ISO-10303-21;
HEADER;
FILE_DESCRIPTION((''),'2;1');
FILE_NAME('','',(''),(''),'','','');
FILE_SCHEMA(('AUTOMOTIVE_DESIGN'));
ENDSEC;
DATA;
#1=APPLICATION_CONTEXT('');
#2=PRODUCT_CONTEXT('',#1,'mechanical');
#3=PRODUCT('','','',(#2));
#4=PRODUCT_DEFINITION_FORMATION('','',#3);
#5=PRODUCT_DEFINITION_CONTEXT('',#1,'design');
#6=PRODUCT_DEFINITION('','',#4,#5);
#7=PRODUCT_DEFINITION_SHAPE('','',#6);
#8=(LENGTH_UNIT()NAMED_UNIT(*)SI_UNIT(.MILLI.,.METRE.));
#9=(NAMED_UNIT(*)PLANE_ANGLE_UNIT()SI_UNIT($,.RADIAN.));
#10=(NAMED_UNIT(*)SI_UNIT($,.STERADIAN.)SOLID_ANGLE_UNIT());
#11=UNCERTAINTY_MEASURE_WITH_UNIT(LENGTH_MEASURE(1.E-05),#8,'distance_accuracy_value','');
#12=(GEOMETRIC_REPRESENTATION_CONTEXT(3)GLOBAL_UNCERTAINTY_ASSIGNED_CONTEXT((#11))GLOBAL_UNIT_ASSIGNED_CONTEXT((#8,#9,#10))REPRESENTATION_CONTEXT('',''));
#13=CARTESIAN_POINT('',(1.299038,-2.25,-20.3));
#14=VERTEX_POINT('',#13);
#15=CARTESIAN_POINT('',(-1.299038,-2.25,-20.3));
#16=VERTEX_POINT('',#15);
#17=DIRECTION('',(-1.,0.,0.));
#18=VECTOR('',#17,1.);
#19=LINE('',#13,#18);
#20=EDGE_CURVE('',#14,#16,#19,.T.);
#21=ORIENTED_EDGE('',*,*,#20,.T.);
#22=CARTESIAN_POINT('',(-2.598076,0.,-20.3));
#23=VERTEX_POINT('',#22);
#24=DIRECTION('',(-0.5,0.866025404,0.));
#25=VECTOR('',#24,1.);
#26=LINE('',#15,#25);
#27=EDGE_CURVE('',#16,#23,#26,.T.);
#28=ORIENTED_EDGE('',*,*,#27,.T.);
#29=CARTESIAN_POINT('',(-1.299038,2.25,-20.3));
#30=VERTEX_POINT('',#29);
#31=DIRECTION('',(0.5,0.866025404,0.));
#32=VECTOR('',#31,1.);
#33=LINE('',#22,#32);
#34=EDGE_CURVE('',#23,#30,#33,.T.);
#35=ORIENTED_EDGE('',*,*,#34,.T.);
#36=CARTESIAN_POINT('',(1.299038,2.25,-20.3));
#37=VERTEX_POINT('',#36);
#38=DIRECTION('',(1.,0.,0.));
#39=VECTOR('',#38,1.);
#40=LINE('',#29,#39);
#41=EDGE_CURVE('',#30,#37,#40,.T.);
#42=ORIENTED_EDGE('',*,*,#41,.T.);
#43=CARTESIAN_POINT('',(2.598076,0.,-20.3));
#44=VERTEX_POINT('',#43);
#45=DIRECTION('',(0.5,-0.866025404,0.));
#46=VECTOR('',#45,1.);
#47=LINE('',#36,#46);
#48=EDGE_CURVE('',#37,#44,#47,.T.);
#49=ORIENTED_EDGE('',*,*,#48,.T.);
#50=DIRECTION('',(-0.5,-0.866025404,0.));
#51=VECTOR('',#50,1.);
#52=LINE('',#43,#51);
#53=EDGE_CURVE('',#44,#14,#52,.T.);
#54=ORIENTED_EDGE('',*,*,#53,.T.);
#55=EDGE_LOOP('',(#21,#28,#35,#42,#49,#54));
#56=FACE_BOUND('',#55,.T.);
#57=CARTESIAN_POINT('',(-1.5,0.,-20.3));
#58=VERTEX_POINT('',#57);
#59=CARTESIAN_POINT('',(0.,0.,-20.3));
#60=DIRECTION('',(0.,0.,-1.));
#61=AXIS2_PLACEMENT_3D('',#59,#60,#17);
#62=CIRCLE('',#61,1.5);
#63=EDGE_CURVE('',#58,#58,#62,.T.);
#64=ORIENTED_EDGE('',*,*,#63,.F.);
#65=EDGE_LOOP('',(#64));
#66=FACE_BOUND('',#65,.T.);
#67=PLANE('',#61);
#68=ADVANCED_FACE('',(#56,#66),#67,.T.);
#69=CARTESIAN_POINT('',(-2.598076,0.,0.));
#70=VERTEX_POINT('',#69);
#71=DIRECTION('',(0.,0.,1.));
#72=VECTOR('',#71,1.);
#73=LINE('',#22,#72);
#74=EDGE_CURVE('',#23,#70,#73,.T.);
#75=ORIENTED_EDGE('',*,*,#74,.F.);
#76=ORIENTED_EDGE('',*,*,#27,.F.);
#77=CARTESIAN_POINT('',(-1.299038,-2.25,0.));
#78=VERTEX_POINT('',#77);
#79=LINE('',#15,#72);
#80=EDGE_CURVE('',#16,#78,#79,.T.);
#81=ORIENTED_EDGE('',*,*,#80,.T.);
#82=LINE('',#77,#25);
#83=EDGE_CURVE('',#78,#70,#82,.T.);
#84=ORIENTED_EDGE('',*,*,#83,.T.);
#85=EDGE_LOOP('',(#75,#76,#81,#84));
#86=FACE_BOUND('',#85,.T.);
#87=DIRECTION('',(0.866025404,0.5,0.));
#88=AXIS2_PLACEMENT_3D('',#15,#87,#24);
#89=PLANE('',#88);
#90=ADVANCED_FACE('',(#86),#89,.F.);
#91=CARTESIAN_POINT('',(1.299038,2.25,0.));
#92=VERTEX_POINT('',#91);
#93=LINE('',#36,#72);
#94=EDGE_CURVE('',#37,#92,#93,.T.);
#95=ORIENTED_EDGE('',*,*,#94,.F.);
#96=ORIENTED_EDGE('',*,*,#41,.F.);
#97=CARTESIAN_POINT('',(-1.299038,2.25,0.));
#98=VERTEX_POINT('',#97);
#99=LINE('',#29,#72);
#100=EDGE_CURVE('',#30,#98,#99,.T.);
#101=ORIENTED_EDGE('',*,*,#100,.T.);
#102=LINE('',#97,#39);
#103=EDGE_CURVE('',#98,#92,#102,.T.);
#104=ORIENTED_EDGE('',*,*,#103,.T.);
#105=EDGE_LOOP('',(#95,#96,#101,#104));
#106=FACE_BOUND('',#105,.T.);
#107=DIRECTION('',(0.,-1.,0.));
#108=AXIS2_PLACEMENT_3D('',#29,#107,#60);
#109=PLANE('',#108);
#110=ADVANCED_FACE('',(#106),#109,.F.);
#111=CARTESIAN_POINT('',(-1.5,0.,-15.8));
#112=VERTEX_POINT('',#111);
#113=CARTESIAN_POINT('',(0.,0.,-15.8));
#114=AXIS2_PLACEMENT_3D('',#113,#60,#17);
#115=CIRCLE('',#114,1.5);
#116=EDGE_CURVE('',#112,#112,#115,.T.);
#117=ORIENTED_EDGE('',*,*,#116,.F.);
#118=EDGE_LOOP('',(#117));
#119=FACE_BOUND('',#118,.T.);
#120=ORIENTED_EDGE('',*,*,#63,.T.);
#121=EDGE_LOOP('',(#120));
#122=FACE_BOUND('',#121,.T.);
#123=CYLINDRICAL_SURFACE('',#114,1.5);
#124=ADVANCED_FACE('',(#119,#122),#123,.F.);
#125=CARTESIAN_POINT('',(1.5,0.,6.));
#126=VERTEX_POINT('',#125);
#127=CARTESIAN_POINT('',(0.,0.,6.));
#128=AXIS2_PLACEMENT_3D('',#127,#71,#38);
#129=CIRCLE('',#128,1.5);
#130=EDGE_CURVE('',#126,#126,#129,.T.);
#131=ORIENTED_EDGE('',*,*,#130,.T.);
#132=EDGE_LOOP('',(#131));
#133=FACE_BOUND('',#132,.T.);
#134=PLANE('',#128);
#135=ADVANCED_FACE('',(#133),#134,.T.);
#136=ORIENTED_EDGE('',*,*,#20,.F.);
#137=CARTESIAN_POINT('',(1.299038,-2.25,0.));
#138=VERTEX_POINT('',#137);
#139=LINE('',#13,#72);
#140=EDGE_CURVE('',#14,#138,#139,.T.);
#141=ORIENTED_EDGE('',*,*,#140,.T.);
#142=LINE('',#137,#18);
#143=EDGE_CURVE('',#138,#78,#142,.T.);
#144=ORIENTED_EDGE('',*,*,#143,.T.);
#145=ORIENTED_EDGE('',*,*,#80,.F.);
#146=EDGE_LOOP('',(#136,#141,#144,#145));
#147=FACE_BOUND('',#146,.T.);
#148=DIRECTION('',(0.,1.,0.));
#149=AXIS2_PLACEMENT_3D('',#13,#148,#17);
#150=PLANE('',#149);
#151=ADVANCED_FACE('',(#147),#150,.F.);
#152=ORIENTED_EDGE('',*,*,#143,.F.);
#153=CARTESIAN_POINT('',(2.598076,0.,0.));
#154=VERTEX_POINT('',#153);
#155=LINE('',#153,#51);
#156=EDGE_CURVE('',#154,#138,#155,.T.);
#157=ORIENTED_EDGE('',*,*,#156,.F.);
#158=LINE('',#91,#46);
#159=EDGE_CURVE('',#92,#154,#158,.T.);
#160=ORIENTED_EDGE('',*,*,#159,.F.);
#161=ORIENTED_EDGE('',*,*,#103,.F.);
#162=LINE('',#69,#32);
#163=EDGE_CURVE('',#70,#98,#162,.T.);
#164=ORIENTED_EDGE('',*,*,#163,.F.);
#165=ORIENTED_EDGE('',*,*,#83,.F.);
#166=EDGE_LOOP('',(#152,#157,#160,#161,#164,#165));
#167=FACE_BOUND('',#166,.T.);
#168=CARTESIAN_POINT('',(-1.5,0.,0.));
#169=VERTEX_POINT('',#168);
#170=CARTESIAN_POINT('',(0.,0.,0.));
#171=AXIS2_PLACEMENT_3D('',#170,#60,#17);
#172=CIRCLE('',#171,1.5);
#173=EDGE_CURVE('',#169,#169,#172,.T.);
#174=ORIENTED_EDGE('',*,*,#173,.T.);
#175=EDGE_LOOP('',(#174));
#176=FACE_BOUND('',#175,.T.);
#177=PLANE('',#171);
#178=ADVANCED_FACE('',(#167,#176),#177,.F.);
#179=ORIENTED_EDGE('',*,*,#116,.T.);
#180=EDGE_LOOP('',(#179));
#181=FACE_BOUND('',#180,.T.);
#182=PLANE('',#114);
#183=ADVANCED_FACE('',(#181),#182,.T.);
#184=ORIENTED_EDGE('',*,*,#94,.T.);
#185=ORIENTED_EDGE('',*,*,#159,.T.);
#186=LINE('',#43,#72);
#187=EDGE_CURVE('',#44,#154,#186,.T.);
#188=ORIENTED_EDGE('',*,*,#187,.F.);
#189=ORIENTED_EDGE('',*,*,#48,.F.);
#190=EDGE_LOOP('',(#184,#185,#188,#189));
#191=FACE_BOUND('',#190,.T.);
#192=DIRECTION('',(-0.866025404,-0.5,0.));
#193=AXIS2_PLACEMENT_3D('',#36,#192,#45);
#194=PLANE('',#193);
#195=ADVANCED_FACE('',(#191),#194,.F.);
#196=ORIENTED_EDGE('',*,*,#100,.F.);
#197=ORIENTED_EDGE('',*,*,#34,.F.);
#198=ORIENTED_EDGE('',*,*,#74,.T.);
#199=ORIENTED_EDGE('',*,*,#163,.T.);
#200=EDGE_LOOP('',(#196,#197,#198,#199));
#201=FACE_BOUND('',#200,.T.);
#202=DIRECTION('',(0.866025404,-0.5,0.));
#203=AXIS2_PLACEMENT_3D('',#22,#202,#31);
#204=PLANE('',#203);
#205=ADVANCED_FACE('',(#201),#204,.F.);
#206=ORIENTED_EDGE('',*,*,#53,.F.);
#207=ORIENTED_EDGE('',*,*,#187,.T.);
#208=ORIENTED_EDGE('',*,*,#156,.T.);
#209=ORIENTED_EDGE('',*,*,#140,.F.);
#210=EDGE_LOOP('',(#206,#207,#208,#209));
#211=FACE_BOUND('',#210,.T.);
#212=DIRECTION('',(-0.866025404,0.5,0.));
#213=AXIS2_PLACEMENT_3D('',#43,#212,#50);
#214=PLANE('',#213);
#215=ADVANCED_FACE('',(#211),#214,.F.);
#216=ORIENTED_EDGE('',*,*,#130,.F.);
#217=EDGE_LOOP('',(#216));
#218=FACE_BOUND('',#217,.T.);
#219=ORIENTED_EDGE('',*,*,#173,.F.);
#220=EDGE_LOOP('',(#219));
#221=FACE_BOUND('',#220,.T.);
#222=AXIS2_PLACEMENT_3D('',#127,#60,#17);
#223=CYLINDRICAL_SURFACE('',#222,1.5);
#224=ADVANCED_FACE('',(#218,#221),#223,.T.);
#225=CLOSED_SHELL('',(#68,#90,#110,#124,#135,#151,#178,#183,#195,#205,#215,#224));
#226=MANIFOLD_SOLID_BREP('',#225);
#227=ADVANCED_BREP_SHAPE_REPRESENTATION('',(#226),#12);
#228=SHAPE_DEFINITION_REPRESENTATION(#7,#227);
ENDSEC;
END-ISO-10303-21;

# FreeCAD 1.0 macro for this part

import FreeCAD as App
import Part
import Sketcher
from FreeCAD import Vector
Q = App.Units.Quantity


def add_polygon(sketch, points):
    """Adds a closed chain of lines whose ends are joined by coincident constraints."""
    first, n = sketch.GeometryCount, len(points)
    for a, b in zip(points, points[1:] + points[:1]):
        sketch.addGeometry(Part.LineSegment(App.Vector(*a, 0), App.Vector(*b, 0)), False)
    for i in range(n):
        sketch.addConstraint(Sketcher.Constraint("Coincident", first + i, 2, first + (i + 1) % n, 1))

doc = App.newDocument("Part")
body = doc.addObject("PartDesign::Body", "Body")

# Sketch on XY plane
sketch1 = body.newObject("Sketcher::SketchObject", "Sketch")
sketch1.AttachmentSupport = (doc.getObject("XY_Plane"), [""])
sketch1.MapMode = "FlatFace"
sketch1.addGeometry(Part.Circle(Vector(0, 0, 0), Vector(0, 0, 1), 1.5), False)
sketch1.addConstraint([
    Sketcher.Constraint("Coincident", 0, 3, -1, 1),
    Sketcher.Constraint("Diameter", 0, Q("3 mm")),
])
pad1 = body.newObject("PartDesign::Pad", "Pad")
pad1.Profile = sketch1
pad1.Length = 6

# Sketch on XY plane
sketch2 = body.newObject("Sketcher::SketchObject", "Sketch001")
sketch2.AttachmentSupport = (doc.getObject("XY_Plane"), [""])
sketch2.MapMode = "FlatFace"
add_polygon(sketch2, [(1.3, 2.2), (2.6, 0), (1.3, -2.2), (-1.3, -2.2), (-2.6, 0), (-1.3, 2.2)])  # lines 0-5
sketch2.addConstraint([
    Sketcher.Constraint("Horizontal", 2),
    Sketcher.Constraint("Horizontal", 5),
    Sketcher.Constraint("Symmetric", 0, 2, 3, 2, -1, 1),
    Sketcher.Constraint("Symmetric", 1, 2, 4, 2, -1, 1),
    Sketcher.Constraint("PointOnObject", 0, 2, -1),
    Sketcher.Constraint("Parallel", 0, 3),
    Sketcher.Constraint("Vertical", 2, 2, 4, 2),
    Sketcher.Constraint("Angle", 0, Q("-60 deg")),
    Sketcher.Constraint("DistanceY", 2, 2, 4, 2, Q("4.5 mm")),
    Sketcher.Constraint("DistanceX", 2, 2, 2, 1, Q("2.598076 mm")),
])
pad2 = body.newObject("PartDesign::Pad", "Pad001")
pad2.Profile = sketch2
pad2.Length = 20.3
pad2.Reversed = True

# Sketch on XY plane
sketch3 = body.newObject("Sketcher::SketchObject", "Sketch002")
sketch3.AttachmentSupport = (doc.getObject("XY_Plane"), [""])
sketch3.MapMode = "FlatFace"
sketch3.AttachmentOffset = App.Placement(Vector(0, 0, -20.3), App.Rotation())
sketch3.addGeometry(Part.Circle(Vector(0, 0, 0), Vector(0, 0, 1), 1.5), False)
sketch3.addConstraint([
    Sketcher.Constraint("Coincident", 0, 3, -1, 1),
    Sketcher.Constraint("Diameter", 0, Q("3 mm")),
])
pocket1 = body.newObject("PartDesign::Pocket", "Pocket")
pocket1.Profile = sketch3
pocket1.Length = 4.5
pocket1.Reversed = True

doc.recompute()
